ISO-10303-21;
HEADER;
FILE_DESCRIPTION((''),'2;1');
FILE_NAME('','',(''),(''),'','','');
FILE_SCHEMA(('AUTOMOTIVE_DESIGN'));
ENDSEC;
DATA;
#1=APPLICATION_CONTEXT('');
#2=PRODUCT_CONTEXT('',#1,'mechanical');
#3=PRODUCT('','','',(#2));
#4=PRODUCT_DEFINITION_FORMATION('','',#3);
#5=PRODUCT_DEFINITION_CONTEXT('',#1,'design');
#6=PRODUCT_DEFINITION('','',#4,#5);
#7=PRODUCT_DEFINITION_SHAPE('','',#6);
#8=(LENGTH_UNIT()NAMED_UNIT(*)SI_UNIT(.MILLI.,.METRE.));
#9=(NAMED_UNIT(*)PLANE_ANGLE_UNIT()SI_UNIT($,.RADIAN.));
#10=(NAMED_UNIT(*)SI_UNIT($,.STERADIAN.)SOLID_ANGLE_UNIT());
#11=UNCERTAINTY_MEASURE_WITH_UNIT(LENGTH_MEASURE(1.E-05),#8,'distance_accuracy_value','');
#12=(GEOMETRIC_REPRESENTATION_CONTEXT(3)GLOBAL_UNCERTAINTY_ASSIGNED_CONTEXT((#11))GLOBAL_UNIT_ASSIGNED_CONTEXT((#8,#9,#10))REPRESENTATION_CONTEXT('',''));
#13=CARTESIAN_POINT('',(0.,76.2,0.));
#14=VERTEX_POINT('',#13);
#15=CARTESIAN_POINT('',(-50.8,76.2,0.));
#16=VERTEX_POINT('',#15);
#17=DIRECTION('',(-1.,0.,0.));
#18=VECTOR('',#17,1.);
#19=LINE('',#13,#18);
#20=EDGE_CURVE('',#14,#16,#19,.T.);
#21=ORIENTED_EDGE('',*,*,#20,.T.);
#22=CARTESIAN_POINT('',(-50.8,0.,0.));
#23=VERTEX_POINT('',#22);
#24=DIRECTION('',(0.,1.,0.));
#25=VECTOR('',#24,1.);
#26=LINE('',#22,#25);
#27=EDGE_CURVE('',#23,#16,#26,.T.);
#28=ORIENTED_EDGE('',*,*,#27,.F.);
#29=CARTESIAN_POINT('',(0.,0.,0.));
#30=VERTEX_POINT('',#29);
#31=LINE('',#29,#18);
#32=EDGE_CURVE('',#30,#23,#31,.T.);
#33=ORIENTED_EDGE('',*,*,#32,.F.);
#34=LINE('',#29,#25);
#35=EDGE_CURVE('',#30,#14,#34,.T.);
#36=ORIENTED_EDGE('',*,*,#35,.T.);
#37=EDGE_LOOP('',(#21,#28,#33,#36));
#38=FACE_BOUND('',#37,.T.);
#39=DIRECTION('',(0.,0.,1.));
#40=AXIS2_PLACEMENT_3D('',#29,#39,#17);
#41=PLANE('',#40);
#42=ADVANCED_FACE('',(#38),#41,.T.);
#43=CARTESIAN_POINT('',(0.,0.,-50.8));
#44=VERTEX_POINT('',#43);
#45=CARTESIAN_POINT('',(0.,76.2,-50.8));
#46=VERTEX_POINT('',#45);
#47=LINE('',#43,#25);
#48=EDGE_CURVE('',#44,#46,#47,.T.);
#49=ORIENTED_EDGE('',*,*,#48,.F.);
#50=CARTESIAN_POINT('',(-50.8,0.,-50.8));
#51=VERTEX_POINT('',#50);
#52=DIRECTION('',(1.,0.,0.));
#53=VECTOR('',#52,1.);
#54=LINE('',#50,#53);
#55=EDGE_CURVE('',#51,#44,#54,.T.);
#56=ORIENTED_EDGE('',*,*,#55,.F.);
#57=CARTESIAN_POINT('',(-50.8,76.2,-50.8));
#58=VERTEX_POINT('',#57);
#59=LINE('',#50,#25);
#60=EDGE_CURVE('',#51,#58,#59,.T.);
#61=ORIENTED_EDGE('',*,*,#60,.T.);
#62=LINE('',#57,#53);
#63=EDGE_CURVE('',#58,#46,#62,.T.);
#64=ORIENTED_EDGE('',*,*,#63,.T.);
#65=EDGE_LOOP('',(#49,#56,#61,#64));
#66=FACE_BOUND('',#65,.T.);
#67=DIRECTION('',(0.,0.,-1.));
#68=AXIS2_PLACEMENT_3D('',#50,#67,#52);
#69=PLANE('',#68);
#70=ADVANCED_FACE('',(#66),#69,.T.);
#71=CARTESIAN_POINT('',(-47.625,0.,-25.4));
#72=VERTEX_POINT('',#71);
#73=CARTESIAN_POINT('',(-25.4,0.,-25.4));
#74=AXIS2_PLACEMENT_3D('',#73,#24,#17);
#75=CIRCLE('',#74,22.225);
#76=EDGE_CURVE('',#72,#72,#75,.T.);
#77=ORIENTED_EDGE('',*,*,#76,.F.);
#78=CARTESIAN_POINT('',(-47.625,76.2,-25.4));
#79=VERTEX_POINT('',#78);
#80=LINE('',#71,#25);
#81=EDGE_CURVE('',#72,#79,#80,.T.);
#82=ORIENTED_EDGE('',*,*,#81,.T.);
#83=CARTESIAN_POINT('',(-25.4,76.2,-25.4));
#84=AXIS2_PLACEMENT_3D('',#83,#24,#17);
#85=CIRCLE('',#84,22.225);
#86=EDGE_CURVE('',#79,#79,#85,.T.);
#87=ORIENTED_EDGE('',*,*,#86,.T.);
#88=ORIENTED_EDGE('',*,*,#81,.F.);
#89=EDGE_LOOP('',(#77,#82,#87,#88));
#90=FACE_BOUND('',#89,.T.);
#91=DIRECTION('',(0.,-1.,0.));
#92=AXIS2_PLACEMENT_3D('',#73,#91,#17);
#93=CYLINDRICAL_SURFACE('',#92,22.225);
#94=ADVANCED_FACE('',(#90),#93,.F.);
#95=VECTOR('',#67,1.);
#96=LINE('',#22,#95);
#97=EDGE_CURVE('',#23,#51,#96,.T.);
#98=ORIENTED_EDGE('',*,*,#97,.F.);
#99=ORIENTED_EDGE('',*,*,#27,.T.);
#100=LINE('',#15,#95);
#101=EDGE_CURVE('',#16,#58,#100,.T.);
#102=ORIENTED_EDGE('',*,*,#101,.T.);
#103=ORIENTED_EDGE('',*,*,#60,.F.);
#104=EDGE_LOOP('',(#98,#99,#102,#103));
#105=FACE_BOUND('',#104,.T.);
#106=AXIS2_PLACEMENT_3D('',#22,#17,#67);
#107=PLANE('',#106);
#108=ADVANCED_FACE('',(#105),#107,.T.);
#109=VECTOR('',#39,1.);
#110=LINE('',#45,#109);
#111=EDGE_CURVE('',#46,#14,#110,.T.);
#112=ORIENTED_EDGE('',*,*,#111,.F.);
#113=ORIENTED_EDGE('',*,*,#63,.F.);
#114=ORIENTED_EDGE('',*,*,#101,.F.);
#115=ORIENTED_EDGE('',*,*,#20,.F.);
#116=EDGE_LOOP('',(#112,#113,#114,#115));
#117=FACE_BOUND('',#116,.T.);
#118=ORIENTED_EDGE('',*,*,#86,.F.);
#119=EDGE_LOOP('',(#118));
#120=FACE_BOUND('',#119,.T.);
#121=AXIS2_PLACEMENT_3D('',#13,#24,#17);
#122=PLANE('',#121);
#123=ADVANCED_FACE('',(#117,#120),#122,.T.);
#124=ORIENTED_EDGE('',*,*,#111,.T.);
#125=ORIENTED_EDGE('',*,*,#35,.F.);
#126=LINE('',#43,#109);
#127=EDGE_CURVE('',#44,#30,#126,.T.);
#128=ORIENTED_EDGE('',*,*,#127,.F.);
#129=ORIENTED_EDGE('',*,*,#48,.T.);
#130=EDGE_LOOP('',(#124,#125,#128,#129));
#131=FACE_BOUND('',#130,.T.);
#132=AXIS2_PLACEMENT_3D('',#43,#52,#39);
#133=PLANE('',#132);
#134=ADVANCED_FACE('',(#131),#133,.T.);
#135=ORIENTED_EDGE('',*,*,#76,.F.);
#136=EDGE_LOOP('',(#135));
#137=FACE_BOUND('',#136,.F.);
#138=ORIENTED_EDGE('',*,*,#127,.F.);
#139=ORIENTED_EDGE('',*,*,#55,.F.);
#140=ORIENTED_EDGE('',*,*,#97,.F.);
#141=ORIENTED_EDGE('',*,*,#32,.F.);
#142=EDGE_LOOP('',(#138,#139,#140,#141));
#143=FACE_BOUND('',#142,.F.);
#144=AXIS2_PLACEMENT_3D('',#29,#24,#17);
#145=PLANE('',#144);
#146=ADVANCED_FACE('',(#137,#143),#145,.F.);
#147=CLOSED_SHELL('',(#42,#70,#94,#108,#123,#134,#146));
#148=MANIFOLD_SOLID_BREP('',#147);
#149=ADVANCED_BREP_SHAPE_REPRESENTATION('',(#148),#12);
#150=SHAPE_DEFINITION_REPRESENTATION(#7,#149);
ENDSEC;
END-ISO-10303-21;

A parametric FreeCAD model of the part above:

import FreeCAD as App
import Part
import Sketcher
from FreeCAD import Vector
Q = App.Units.Quantity

doc = App.newDocument("Part")
body = doc.addObject("PartDesign::Body", "Body")

# Sketch on XZ plane
sketch1 = body.newObject("Sketcher::SketchObject", "Sketch")
sketch1.AttachmentSupport = (doc.getObject("XZ_Plane"), [""])
sketch1.MapMode = "FlatFace"
sketch1.addGeometry([
    Part.LineSegment(Vector(-51, 0, 0), Vector(0, 0, 0)),  # 0
    Part.LineSegment(Vector(0, 0, 0), Vector(0, -51, 0)),  # 1
    Part.LineSegment(Vector(0, -51, 0), Vector(-51, -51, 0)),  # 2
    Part.LineSegment(Vector(-51, -51, 0), Vector(-51, 0, 0)),  # 3
    Part.Circle(Vector(-25, -25, 0), Vector(0, 0, 1), 22),  # 4
], False)
sketch1.addConstraint([
    Sketcher.Constraint("Coincident", 0, 2, 1, 1),
    Sketcher.Constraint("Coincident", 1, 2, 2, 1),
    Sketcher.Constraint("Coincident", 2, 2, 3, 1),
    Sketcher.Constraint("Coincident", 3, 2, 0, 1),
    Sketcher.Constraint("Horizontal", 0),
    Sketcher.Constraint("Vertical", 1),
    Sketcher.Constraint("Horizontal", 2),
    Sketcher.Constraint("Vertical", 3),
    Sketcher.Constraint("Coincident", 0, 2, -1, 1),
    Sketcher.Constraint("Equal", 2, 1),
    Sketcher.Constraint("Diameter", 4, Q("1.75 in")),
    Sketcher.Constraint("DistanceX", 0, 1, 0, 2, Q("2 in")),
    Sketcher.Constraint("DistanceX", 4, 3, -1, 1, Q("1 in")),
    Sketcher.Constraint("DistanceY", 4, 3, -1, 1, Q("1 in")),
])
pad1 = body.newObject("PartDesign::Pad", "Pad")
pad1.Profile = sketch1
pad1.Length = Q("3 in")
pad1.Reversed = True

doc.recompute()
